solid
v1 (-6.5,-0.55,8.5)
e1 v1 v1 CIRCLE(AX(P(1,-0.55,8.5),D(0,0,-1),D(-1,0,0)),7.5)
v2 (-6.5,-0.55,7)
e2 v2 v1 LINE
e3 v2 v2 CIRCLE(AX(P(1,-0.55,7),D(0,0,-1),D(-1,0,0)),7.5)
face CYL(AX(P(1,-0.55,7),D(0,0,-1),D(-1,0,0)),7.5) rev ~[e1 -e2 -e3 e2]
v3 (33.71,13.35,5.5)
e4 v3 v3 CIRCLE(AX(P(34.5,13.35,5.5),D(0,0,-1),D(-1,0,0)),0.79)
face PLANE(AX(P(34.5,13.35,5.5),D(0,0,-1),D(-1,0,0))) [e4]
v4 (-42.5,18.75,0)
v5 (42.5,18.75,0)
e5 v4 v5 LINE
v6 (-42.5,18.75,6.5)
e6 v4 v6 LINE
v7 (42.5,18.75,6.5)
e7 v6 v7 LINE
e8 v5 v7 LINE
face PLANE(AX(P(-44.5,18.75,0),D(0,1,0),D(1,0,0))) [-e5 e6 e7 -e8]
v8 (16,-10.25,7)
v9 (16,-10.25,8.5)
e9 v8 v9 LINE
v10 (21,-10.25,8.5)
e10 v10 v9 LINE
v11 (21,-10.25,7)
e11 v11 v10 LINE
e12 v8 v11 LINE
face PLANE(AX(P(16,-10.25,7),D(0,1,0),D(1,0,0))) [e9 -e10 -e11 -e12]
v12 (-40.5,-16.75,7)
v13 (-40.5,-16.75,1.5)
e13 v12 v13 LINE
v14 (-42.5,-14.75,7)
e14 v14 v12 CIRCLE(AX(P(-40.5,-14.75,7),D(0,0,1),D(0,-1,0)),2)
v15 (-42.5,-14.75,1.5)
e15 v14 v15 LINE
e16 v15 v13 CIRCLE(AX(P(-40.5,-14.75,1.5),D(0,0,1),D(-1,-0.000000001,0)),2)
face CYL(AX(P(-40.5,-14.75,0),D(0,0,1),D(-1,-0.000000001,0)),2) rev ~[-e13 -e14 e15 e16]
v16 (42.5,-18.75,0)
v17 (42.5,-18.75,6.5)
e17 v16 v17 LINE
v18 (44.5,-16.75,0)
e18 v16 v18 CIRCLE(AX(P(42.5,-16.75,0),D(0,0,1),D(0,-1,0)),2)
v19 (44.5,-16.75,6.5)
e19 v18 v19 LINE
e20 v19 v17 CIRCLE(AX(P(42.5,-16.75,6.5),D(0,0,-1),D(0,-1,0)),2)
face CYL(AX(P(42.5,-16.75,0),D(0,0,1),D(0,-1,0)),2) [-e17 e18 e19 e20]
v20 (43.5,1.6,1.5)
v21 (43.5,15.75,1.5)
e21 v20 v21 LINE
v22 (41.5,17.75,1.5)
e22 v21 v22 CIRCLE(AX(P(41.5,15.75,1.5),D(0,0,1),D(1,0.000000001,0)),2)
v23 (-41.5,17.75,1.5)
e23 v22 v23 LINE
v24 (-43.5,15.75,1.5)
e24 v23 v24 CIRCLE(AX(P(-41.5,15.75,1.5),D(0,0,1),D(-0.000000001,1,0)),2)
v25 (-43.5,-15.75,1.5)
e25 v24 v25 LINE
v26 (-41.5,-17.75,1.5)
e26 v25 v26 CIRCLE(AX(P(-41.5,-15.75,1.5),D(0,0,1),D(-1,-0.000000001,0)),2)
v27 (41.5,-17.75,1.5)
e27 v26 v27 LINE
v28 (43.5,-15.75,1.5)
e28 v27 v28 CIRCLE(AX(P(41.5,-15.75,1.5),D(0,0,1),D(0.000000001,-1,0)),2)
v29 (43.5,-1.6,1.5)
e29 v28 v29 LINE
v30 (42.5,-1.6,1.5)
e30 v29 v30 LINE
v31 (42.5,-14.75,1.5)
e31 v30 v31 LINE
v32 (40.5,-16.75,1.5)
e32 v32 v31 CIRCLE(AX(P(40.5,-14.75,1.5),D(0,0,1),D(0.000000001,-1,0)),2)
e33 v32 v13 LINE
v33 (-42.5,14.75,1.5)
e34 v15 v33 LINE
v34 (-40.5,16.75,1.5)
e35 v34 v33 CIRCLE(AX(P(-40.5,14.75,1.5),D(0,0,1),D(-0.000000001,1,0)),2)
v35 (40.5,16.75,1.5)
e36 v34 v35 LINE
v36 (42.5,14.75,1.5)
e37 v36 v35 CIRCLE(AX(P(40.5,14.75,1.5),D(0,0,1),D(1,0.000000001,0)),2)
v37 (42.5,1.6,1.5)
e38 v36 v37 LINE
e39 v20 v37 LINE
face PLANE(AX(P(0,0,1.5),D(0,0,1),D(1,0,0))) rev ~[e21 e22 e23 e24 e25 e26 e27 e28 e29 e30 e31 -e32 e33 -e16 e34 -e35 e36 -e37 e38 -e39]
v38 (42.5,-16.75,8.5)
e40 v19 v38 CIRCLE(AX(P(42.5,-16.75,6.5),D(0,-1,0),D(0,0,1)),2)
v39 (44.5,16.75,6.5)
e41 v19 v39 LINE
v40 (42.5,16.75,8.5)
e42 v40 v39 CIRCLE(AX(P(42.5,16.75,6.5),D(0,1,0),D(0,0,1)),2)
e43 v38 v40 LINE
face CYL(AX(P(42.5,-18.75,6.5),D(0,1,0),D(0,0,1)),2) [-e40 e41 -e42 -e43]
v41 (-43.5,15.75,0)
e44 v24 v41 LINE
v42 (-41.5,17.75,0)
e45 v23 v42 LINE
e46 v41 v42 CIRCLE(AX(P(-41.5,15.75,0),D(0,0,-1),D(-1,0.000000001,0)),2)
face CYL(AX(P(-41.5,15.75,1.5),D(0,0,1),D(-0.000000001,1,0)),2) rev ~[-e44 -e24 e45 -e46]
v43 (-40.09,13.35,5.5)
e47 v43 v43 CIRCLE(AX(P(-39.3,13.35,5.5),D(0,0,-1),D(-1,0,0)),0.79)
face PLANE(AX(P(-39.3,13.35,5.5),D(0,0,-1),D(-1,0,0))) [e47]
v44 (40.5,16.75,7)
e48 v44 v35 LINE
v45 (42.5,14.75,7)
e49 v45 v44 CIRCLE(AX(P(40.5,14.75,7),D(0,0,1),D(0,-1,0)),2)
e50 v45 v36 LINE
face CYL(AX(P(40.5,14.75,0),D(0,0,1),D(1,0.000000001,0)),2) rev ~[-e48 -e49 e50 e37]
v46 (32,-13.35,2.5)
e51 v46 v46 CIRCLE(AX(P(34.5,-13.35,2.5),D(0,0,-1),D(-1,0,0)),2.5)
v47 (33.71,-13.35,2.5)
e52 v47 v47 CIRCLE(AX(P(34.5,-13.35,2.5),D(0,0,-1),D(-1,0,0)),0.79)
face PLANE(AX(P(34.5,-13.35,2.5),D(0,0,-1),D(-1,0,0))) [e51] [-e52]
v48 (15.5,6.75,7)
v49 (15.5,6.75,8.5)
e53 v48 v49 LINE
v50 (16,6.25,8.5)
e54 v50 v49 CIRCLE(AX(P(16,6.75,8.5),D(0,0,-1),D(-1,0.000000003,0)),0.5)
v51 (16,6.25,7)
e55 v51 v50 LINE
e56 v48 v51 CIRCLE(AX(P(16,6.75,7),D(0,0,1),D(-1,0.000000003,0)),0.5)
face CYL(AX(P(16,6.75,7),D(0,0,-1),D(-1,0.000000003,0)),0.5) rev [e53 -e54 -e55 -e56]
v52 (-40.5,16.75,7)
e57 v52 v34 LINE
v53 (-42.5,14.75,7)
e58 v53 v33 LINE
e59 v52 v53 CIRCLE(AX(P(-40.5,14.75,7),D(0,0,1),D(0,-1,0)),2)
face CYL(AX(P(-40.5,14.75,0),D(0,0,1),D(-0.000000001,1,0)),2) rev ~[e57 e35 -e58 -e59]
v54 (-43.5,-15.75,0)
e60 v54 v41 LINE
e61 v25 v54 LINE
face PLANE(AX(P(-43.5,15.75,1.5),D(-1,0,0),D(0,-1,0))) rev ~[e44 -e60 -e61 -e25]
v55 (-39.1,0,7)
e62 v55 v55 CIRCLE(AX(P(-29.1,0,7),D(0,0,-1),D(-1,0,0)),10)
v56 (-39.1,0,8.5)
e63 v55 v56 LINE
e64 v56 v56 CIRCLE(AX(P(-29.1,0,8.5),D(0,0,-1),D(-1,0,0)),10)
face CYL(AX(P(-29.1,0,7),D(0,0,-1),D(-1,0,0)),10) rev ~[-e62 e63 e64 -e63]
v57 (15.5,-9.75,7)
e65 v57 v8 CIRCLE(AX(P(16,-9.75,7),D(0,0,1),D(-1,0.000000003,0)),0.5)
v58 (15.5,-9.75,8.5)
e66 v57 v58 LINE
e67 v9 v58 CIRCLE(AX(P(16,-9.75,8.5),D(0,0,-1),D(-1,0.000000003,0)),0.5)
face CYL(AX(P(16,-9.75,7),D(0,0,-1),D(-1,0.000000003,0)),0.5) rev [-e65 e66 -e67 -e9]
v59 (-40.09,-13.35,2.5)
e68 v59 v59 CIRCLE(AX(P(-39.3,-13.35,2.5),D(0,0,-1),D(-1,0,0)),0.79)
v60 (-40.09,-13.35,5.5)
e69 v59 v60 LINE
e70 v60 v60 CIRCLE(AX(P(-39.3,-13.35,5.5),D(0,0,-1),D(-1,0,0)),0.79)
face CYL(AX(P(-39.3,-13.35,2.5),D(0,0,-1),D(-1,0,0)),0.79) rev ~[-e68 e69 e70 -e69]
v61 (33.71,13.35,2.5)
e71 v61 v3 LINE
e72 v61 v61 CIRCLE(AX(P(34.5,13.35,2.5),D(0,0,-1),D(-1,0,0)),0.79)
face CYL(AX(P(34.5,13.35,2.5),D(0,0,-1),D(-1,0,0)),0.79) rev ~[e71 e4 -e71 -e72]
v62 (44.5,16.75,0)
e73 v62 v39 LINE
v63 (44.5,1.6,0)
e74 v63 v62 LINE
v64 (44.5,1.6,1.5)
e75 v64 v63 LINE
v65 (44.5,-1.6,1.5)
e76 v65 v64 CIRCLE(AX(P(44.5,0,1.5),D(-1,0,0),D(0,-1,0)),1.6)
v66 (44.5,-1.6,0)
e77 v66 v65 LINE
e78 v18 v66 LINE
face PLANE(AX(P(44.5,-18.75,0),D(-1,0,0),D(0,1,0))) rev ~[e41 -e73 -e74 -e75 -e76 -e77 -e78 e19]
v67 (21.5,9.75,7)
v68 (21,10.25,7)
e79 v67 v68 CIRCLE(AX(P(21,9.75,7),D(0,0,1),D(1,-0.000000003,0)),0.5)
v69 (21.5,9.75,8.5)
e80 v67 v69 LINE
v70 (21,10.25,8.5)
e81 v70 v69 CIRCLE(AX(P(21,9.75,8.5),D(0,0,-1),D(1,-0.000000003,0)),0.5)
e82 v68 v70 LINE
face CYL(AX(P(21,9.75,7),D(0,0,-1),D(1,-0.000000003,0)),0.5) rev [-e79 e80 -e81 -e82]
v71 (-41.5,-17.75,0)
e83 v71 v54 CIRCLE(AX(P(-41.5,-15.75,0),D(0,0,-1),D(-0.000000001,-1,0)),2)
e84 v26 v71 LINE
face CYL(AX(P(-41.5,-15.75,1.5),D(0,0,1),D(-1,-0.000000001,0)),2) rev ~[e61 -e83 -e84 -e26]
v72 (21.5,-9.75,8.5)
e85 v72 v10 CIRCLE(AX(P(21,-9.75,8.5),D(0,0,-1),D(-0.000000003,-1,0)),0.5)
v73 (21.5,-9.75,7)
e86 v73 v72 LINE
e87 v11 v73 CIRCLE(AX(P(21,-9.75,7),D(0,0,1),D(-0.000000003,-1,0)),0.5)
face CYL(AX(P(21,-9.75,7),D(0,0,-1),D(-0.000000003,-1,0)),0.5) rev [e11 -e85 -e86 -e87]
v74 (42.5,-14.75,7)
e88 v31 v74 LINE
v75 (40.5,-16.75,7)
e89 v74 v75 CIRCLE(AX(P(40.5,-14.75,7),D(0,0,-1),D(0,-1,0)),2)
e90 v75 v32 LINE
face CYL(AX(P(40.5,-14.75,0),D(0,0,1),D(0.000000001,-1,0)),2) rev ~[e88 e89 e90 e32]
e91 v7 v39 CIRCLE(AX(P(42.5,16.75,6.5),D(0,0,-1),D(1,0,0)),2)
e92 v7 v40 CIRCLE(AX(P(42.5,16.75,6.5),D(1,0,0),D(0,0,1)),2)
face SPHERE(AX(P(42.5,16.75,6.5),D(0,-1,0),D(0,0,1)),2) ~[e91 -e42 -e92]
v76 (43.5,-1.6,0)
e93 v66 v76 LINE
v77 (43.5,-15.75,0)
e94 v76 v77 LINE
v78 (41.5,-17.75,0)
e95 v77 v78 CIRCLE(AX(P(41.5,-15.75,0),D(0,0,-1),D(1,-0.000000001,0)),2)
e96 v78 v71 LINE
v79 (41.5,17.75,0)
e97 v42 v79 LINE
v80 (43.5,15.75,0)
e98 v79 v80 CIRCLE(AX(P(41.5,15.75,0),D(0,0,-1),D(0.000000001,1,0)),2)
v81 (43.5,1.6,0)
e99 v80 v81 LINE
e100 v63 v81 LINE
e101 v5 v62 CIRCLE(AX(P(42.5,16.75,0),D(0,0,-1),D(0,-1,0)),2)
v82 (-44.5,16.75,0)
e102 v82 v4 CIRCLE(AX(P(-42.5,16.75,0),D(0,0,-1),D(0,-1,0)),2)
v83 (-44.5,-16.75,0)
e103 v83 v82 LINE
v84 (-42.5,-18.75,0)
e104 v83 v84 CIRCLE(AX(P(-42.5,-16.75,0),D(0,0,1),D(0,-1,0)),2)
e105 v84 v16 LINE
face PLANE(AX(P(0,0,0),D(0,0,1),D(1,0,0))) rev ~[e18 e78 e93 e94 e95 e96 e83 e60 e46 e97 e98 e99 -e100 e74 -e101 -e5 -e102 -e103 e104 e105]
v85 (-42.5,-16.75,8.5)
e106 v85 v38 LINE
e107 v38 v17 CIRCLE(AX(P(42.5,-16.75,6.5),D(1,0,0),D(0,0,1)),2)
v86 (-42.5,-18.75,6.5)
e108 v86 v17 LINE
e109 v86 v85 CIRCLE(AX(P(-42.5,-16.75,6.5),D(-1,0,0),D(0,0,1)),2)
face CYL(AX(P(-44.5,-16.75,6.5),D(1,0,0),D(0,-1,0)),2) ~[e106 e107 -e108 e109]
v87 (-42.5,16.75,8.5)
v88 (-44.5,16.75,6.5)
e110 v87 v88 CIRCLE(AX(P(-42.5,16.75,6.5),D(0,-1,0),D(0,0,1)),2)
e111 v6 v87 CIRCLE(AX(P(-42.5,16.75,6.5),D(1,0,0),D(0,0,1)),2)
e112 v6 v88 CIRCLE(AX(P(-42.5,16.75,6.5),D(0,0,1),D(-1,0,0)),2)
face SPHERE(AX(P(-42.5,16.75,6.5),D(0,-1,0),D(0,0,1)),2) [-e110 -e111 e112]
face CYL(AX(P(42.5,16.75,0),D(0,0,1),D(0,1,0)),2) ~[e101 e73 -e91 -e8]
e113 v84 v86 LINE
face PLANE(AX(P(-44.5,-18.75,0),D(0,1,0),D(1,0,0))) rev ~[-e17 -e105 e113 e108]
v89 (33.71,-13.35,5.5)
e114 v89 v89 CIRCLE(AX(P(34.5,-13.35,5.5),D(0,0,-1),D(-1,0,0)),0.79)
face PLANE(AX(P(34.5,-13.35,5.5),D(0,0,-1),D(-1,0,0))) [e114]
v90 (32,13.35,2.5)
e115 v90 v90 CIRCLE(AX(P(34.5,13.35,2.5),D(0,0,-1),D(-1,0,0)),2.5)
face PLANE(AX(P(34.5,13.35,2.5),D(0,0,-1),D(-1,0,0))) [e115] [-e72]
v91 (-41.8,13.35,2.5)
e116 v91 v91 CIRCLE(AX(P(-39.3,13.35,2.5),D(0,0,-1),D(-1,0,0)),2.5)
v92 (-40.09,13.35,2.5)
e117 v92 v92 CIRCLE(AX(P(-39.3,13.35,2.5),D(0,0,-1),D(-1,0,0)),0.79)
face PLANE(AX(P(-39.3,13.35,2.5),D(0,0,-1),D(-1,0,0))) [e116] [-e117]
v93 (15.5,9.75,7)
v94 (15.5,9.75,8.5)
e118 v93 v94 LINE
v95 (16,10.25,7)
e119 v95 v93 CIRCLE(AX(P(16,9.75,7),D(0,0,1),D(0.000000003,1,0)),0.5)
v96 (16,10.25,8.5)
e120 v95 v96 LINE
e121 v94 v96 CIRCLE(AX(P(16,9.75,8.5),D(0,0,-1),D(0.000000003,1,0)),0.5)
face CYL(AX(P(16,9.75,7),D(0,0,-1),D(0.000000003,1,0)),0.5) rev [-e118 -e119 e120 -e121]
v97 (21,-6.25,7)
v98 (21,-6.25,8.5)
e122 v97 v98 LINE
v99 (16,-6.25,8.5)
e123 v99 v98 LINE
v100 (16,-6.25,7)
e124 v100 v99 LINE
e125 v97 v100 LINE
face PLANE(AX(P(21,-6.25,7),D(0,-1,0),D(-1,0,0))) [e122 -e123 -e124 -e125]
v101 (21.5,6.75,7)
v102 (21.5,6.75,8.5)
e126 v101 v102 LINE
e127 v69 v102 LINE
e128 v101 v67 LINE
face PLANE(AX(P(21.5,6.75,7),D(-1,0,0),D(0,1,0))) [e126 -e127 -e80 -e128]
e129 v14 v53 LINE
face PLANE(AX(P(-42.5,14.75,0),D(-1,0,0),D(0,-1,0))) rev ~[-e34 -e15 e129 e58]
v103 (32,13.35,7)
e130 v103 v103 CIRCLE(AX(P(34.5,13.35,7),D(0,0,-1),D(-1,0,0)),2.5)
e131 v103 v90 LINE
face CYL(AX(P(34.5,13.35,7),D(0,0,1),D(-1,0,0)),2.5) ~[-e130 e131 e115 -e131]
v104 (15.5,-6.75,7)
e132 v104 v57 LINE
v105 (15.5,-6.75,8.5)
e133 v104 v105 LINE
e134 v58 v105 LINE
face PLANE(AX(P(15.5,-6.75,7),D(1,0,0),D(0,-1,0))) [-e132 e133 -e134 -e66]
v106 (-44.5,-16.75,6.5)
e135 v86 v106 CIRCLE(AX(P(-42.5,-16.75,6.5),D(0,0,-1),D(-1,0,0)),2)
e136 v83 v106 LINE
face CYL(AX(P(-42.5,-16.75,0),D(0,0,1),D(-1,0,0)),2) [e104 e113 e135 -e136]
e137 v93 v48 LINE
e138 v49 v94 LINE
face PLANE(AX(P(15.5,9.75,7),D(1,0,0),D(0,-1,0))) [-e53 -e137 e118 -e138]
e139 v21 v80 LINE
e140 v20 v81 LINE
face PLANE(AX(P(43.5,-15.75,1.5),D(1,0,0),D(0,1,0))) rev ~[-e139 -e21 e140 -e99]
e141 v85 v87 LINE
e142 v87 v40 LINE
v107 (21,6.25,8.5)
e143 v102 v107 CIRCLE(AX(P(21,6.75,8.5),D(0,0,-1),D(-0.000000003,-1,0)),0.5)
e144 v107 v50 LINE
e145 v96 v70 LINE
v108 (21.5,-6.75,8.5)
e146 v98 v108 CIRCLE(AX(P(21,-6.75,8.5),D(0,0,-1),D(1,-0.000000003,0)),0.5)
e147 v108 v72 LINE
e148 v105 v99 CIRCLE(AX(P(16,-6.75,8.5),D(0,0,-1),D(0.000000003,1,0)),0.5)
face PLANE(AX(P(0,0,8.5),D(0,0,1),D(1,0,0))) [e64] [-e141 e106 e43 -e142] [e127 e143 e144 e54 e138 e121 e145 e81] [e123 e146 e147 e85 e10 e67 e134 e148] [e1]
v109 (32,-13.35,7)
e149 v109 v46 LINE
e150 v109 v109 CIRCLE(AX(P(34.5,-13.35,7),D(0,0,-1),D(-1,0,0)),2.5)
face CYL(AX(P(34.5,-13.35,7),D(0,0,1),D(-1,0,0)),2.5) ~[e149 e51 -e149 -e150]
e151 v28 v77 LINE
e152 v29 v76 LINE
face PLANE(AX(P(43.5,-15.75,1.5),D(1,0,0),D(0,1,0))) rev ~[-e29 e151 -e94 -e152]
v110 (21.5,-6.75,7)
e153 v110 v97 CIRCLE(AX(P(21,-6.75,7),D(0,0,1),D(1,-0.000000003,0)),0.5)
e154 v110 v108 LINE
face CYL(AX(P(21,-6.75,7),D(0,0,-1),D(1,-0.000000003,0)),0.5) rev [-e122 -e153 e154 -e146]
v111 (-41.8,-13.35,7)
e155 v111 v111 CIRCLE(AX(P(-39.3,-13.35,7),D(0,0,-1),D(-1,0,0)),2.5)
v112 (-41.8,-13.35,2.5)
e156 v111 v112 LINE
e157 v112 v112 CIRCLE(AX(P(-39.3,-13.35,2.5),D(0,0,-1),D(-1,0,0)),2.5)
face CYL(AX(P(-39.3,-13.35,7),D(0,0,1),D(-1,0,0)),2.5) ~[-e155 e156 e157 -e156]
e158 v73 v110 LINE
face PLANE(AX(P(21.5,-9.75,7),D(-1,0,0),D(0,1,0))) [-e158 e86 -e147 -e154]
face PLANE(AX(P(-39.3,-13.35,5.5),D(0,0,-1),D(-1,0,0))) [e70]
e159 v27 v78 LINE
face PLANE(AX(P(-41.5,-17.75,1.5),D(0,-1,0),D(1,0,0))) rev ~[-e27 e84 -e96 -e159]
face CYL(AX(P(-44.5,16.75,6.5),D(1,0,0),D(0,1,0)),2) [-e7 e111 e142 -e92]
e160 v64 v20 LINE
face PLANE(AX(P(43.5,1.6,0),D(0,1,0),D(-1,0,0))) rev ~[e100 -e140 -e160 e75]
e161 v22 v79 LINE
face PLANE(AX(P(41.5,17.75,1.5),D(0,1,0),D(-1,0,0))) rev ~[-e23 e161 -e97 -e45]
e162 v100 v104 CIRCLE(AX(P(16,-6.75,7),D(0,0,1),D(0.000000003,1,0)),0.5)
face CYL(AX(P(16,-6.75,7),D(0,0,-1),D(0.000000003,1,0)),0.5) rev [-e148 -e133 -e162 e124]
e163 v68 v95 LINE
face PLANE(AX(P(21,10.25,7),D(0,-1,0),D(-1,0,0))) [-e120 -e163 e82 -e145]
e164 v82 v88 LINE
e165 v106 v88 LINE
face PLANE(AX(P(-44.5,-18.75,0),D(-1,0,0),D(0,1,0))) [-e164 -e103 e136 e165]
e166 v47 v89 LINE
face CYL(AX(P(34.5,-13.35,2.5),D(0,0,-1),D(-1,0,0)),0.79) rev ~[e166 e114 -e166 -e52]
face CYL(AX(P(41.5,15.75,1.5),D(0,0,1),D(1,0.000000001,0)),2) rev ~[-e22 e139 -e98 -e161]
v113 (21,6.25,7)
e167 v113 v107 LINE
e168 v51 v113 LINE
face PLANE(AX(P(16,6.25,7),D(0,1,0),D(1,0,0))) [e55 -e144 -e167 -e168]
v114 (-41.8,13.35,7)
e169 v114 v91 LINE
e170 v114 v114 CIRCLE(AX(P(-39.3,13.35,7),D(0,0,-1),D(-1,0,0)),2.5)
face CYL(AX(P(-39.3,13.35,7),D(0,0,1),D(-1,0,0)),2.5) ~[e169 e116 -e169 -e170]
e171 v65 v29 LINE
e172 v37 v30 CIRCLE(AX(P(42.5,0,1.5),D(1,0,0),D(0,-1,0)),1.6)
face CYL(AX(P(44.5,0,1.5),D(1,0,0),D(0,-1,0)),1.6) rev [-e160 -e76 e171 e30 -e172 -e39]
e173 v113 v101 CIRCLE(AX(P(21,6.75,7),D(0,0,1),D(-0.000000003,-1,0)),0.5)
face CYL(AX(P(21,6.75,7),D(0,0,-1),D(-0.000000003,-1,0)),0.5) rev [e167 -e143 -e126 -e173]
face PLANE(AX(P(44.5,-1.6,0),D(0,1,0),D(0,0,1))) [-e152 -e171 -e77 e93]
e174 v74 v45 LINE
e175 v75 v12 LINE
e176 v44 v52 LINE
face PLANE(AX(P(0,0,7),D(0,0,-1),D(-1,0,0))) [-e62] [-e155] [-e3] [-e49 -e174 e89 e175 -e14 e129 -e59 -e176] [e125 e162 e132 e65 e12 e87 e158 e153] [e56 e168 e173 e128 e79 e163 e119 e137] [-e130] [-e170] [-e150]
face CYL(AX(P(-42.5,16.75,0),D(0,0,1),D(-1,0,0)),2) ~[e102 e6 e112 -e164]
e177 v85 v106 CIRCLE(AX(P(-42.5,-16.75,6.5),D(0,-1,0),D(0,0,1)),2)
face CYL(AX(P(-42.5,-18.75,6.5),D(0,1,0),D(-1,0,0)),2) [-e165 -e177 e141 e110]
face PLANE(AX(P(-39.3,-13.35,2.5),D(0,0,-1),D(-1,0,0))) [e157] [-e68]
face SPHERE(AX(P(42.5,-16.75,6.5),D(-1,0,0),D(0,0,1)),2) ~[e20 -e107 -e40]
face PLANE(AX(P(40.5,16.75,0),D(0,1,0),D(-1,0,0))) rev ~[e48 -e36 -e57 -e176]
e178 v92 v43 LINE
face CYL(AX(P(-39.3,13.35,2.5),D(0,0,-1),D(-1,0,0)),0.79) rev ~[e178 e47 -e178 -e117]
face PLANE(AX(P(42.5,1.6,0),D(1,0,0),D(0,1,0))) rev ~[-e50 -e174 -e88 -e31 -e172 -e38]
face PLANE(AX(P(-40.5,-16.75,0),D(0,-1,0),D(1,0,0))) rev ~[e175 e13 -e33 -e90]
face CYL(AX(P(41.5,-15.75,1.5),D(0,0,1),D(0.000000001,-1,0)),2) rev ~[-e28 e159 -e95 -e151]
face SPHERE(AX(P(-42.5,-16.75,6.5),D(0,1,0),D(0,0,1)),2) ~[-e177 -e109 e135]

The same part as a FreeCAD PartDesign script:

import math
import FreeCAD as App
import Part
import Sketcher
from FreeCAD import Vector
Q = App.Units.Quantity


def edges_at(feature, points):
    """Names of the edges that pass closest to the given points."""
    edges = feature.Shape.Edges
    near = lambda p: min(range(len(edges)), key=lambda i: edges[i].distToShape(Part.Vertex(*p))[0])
    return sorted({f"Edge{near(p) + 1}" for p in points})


def add_polygon(sketch, points):
    """Adds a closed chain of lines whose ends are joined by coincident constraints."""
    first, n = sketch.GeometryCount, len(points)
    for a, b in zip(points, points[1:] + points[:1]):
        sketch.addGeometry(Part.LineSegment(App.Vector(*a, 0), App.Vector(*b, 0)), False)
    for i in range(n):
        sketch.addConstraint(Sketcher.Constraint("Coincident", first + i, 2, first + (i + 1) % n, 1))

doc = App.newDocument("Part")
body = doc.addObject("PartDesign::Body", "Body")

# Sketch on XY plane
sketch1 = body.newObject("Sketcher::SketchObject", "Sketch")
sketch1.AttachmentSupport = (doc.getObject("XY_Plane"), [""])
sketch1.MapMode = "FlatFace"
add_polygon(sketch1, [(-44, 19), (-44, -19), (44, -19), (44, 19)])  # lines 0-3
sketch1.addConstraint(Sketcher.Constraint("Vertical", 0))
sketch1.addConstraint(Sketcher.Constraint("Horizontal", 1))
sketch1.addConstraint(Sketcher.Constraint("Vertical", 2))
sketch1.addConstraint(Sketcher.Constraint("Horizontal", 3))
sketch1.addConstraint(Sketcher.Constraint("Symmetric", 0, 2, 2, 2, -1, 1))
sketch1.addConstraint(Sketcher.Constraint("DistanceX", 1, 1, 1, 2, Q("89 mm")))
sketch1.addConstraint(Sketcher.Constraint("DistanceY", 0, 2, 0, 1, Q("37.5 mm")))
pad1 = body.newObject("PartDesign::Pad", "Pad")
pad1.Profile = sketch1
pad1.Length = 8.5

# Sketch on XY plane
sketch2 = body.newObject("Sketcher::SketchObject", "Sketch001")
sketch2.AttachmentSupport = (doc.getObject("XY_Plane"), [""])
sketch2.MapMode = "FlatFace"
add_polygon(sketch2, [(42, 17), (42, -17), (-42, -17), (-42, 17)])  # lines 0-3
sketch2.addConstraint(Sketcher.Constraint("Vertical", 0))
sketch2.addConstraint(Sketcher.Constraint("Horizontal", 1))
sketch2.addConstraint(Sketcher.Constraint("Vertical", 2))
sketch2.addConstraint(Sketcher.Constraint("Horizontal", 3))
sketch2.addConstraint(Sketcher.Constraint("Symmetric", 0, 2, 2, 2, -1, 1))
sketch2.addConstraint(Sketcher.Constraint("DistanceX", 1, 2, 1, 1, Q("85 mm")))
sketch2.addConstraint(Sketcher.Constraint("DistanceY", 0, 2, 0, 1, Q("33.5 mm")))
pocket1 = body.newObject("PartDesign::Pocket", "Pocket")
pocket1.Profile = sketch2
pocket1.Length = 7
pocket1.Reversed = True

# Sketch on YZ plane
sketch3 = body.newObject("Sketcher::SketchObject", "Sketch002")
sketch3.AttachmentSupport = (doc.getObject("YZ_Plane"), [""])
sketch3.MapMode = "FlatFace"
sketch3.AttachmentOffset = App.Placement(Vector(0, 0, 44.5), App.Rotation())
sketch3.addGeometry(Part.LineSegment(Vector(-1.6, 0, 0), Vector(1.6, 0, 0)), False)
sketch3.addGeometry(Part.LineSegment(Vector(1.6, 0, 0), Vector(1.6, 1.5, 0)), False)
sketch3.addGeometry(Part.ArcOfCircle(Part.Circle(Vector(0, 1.5, 0), Vector(0, 0, 1), 1.6), math.radians(0), math.radians(180)), False)
sketch3.addGeometry(Part.LineSegment(Vector(-1.6, 1.5, 0), Vector(-1.6, 0, 0)), False)
sketch3.addConstraint(Sketcher.Constraint("Coincident", 0, 2, 1, 1))
sketch3.addConstraint(Sketcher.Constraint("Tangent", 1, 2, 2, 1))
sketch3.addConstraint(Sketcher.Constraint("Tangent", 2, 2, 3, 1))
sketch3.addConstraint(Sketcher.Constraint("Coincident", 3, 2, 0, 1))
sketch3.addConstraint(Sketcher.Constraint("Horizontal", 0))
sketch3.addConstraint(Sketcher.Constraint("Vertical", 1))
sketch3.addConstraint(Sketcher.Constraint("Vertical", 3))
sketch3.addConstraint(Sketcher.Constraint("Symmetric", 0, 2, 3, 2, -1, 1))
sketch3.addConstraint(Sketcher.Constraint("Radius", 2, Q("1.6 mm")))
sketch3.addConstraint(Sketcher.Constraint("DistanceY", 1, 1, 1, 2, Q("1.5 mm")))
pocket2 = body.newObject("PartDesign::Pocket", "Pocket001")
pocket2.Profile = sketch3
pocket2.Length = 4
doc.recompute()

fillet = body.newObject("PartDesign::Fillet", "Fillet")
fillet.Base = (pocket2, edges_at(pocket2, [
    (-44.5, 0, 8.5),
    (0, -18.75, 8.5),
    (42.5, -16.75, 3.5),
    (42.5, 16.75, 3.5),
    (-42.5, 16.75, 3.5),
    (-42.5, -16.75, 3.5),
    (44.5, 0, 8.5),
    (0, 18.75, 8.5),
    (44.5, -18.75, 4.25),
    (-44.5, -18.75, 4.25),
    (-44.5, 18.75, 4.25),
    (44.5, 18.75, 4.25),
]))
fillet.Radius = 2

# Sketch on XY plane
sketch4 = body.newObject("Sketcher::SketchObject", "Sketch003")
sketch4.AttachmentSupport = (doc.getObject("XY_Plane"), [""])
sketch4.MapMode = "FlatFace"
sketch4.addGeometry(Part.LineSegment(Vector(43.5, 15.8, 0), Vector(43.5, 1.6, 0)), False)
sketch4.addGeometry(Part.LineSegment(Vector(43.5, 1.6, 0), Vector(42.5, 1.6, 0)), False)
sketch4.addGeometry(Part.LineSegment(Vector(42.5, 1.6, 0), Vector(42.5, 14.8, 0)), False)
sketch4.addGeometry(Part.ArcOfCircle(Part.Circle(Vector(40.5, 14.7, 0), Vector(0, 0, 1), 2), math.radians(0), math.radians(90)), False)
sketch4.addGeometry(Part.LineSegment(Vector(40.5, 16.8, 0), Vector(-40.5, 16.8, 0)), False)
sketch4.addGeometry(Part.ArcOfCircle(Part.Circle(Vector(-40.5, 14.7, 0), Vector(0, 0, 1), 2), math.radians(90), math.radians(180)), False)
sketch4.addGeometry(Part.LineSegment(Vector(-42.5, 14.8, 0), Vector(-42.5, -14.8, 0)), False)
sketch4.addGeometry(Part.ArcOfCircle(Part.Circle(Vector(-40.5, -14.7, 0), Vector(0, 0, 1), 2), math.radians(-180), math.radians(-90)), False)
sketch4.addGeometry(Part.LineSegment(Vector(-40.5, -16.8, 0), Vector(40.5, -16.8, 0)), False)
sketch4.addGeometry(Part.ArcOfCircle(Part.Circle(Vector(40.5, -14.7, 0), Vector(0, 0, 1), 2), math.radians(-90), math.radians(0)), False)
sketch4.addGeometry(Part.LineSegment(Vector(42.5, -14.8, 0), Vector(42.5, -1.6, 0)), False)
sketch4.addGeometry(Part.LineSegment(Vector(42.5, -1.6, 0), Vector(43.5, -1.6, 0)), False)
sketch4.addGeometry(Part.LineSegment(Vector(43.5, -1.6, 0), Vector(43.5, -15.8, 0)), False)
sketch4.addGeometry(Part.ArcOfCircle(Part.Circle(Vector(41.5, -15.7, 0), Vector(0, 0, 1), 2), math.radians(-90), math.radians(0)), False)
sketch4.addGeometry(Part.LineSegment(Vector(41.5, -17.8, 0), Vector(-41.5, -17.8, 0)), False)
sketch4.addGeometry(Part.ArcOfCircle(Part.Circle(Vector(-41.5, -15.7, 0), Vector(0, 0, 1), 2), math.radians(-180), math.radians(-90)), False)
sketch4.addGeometry(Part.LineSegment(Vector(-43.5, -15.8, 0), Vector(-43.5, 15.8, 0)), False)
sketch4.addGeometry(Part.ArcOfCircle(Part.Circle(Vector(-41.5, 15.7, 0), Vector(0, 0, 1), 2), math.radians(90), math.radians(180)), False)
sketch4.addGeometry(Part.LineSegment(Vector(-41.5, 17.8, 0), Vector(41.5, 17.8, 0)), False)
sketch4.addGeometry(Part.ArcOfCircle(Part.Circle(Vector(41.5, 15.7, 0), Vector(0, 0, 1), 2), math.radians(0), math.radians(90)), False)
sketch4.addConstraint(Sketcher.Constraint("Coincident", 0, 2, 1, 1))
sketch4.addConstraint(Sketcher.Constraint("Coincident", 1, 2, 2, 1))
sketch4.addConstraint(Sketcher.Constraint("Tangent", 2, 2, 3, 1))
sketch4.addConstraint(Sketcher.Constraint("Tangent", 3, 2, 4, 1))
sketch4.addConstraint(Sketcher.Constraint("Tangent", 4, 2, 5, 1))
sketch4.addConstraint(Sketcher.Constraint("Tangent", 5, 2, 6, 1))
sketch4.addConstraint(Sketcher.Constraint("Tangent", 6, 2, 7, 1))
sketch4.addConstraint(Sketcher.Constraint("Tangent", 7, 2, 8, 1))
sketch4.addConstraint(Sketcher.Constraint("Tangent", 8, 2, 9, 1))
sketch4.addConstraint(Sketcher.Constraint("Tangent", 9, 2, 10, 1))
sketch4.addConstraint(Sketcher.Constraint("Coincident", 10, 2, 11, 1))
sketch4.addConstraint(Sketcher.Constraint("Coincident", 11, 2, 12, 1))
sketch4.addConstraint(Sketcher.Constraint("Tangent", 12, 2, 13, 2))
sketch4.addConstraint(Sketcher.Constraint("Tangent", 13, 1, 14, 1))
sketch4.addConstraint(Sketcher.Constraint("Tangent", 14, 2, 15, 2))
sketch4.addConstraint(Sketcher.Constraint("Tangent", 15, 1, 16, 1))
sketch4.addConstraint(Sketcher.Constraint("Tangent", 16, 2, 17, 2))
sketch4.addConstraint(Sketcher.Constraint("Tangent", 17, 1, 18, 1))
sketch4.addConstraint(Sketcher.Constraint("Tangent", 18, 2, 19, 2))
sketch4.addConstraint(Sketcher.Constraint("Tangent", 19, 1, 0, 1))
sketch4.addConstraint(Sketcher.Constraint("Vertical", 0))
sketch4.addConstraint(Sketcher.Constraint("Horizontal", 1))
sketch4.addConstraint(Sketcher.Constraint("Vertical", 2))
sketch4.addConstraint(Sketcher.Constraint("Horizontal", 4))
sketch4.addConstraint(Sketcher.Constraint("Vertical", 6))
sketch4.addConstraint(Sketcher.Constraint("Horizontal", 8))
sketch4.addConstraint(Sketcher.Constraint("Vertical", 10))
sketch4.addConstraint(Sketcher.Constraint("Horizontal", 11))
sketch4.addConstraint(Sketcher.Constraint("Vertical", 12))
sketch4.addConstraint(Sketcher.Constraint("Horizontal", 14))
sketch4.addConstraint(Sketcher.Constraint("Vertical", 16))
sketch4.addConstraint(Sketcher.Constraint("Horizontal", 18))
sketch4.addConstraint(Sketcher.Constraint("Equal", 3, 5))
sketch4.addConstraint(Sketcher.Constraint("Equal", 5, 7))
sketch4.addConstraint(Sketcher.Constraint("Equal", 7, 9))
sketch4.addConstraint(Sketcher.Constraint("Equal", 9, 13))
sketch4.addConstraint(Sketcher.Constraint("Equal", 13, 15))
sketch4.addConstraint(Sketcher.Constraint("Equal", 15, 17))
sketch4.addConstraint(Sketcher.Constraint("Equal", 17, 19))
sketch4.addConstraint(Sketcher.Constraint("Symmetric", 3, 3, 7, 3, -1, 1))
sketch4.addConstraint(Sketcher.Constraint("Symmetric", 13, 3, 17, 3, -1, 1))
sketch4.addConstraint(Sketcher.Constraint("Symmetric", 1, 2, 10, 2, -1))
sketch4.addConstraint(Sketcher.Constraint("Vertical", 13, 3, 19, 3))
sketch4.addConstraint(Sketcher.Constraint("Radius", 3, Q("2 mm")))
sketch4.addConstraint(Sketcher.Constraint("DistanceX", 1, 2, 1, 1, Q("1 mm")))
sketch4.addConstraint(Sketcher.Constraint("DistanceX", 4, 2, 4, 1, Q("81 mm")))
sketch4.addConstraint(Sketcher.Constraint("DistanceY", 6, 2, 6, 1, Q("29.5 mm")))
sketch4.addConstraint(Sketcher.Constraint("DistanceY", 16, 1, 16, 2, Q("31.5 mm")))
sketch4.addConstraint(Sketcher.Constraint("DistanceY", 0, 2, 0, 1, Q("14.15 mm")))
pad2 = body.newObject("PartDesign::Pad", "Pad001")
pad2.Profile = sketch4
pad2.Length = 1
pad2.Reversed = True

# Sketch on XY plane
sketch5 = body.newObject("Sketcher::SketchObject", "Sketch004")
sketch5.AttachmentSupport = (doc.getObject("XY_Plane"), [""])
sketch5.MapMode = "FlatFace"
sketch5.AttachmentOffset = App.Placement(Vector(0, 0, 7), App.Rotation())
sketch5.addGeometry(Part.Circle(Vector(-39.3, -13.3, 0), Vector(0, 0, 1), 2.5), False)
sketch5.addGeometry(Part.Circle(Vector(-39.3, 13.3, 0), Vector(0, 0, 1), 2.5), False)
sketch5.addGeometry(Part.Circle(Vector(34.5, 13.3, 0), Vector(0, 0, 1), 2.5), False)
sketch5.addGeometry(Part.Circle(Vector(34.5, -13.3, 0), Vector(0, 0, 1), 2.5), False)
sketch5.addConstraint(Sketcher.Constraint("Equal", 0, 1))
sketch5.addConstraint(Sketcher.Constraint("Equal", 1, 2))
sketch5.addConstraint(Sketcher.Constraint("Equal", 2, 3))
sketch5.addConstraint(Sketcher.Constraint("Symmetric", 0, 3, 1, 3, -1))
sketch5.addConstraint(Sketcher.Constraint("Symmetric", 2, 3, 3, 3, -1))
sketch5.addConstraint(Sketcher.Constraint("Horizontal", 1, 3, 2, 3))
sketch5.addConstraint(Sketcher.Constraint("Diameter", 0, Q("5 mm")))
sketch5.addConstraint(Sketcher.Constraint("DistanceX", 0, 3, -1, 1, Q("39.3 mm")))
sketch5.addConstraint(Sketcher.Constraint("DistanceX", -1, 1, 2, 3, Q("34.5 mm")))
sketch5.addConstraint(Sketcher.Constraint("DistanceY", 0, 3, 1, 3, Q("26.7 mm")))
pad3 = body.newObject("PartDesign::Pad", "Pad002")
pad3.Profile = sketch5
pad3.Length = 4.5
pad3.Reversed = True

# Sketch on XY plane
sketch6 = body.newObject("Sketcher::SketchObject", "Sketch005")
sketch6.AttachmentSupport = (doc.getObject("XY_Plane"), [""])
sketch6.MapMode = "FlatFace"
sketch6.AttachmentOffset = App.Placement(Vector(0, 0, 2.5), App.Rotation())
sketch6.addGeometry(Part.Circle(Vector(34.5, 13.3, 0), Vector(0, 0, 1), 0.8), False)
sketch6.addGeometry(Part.Circle(Vector(34.5, -13.3, 0), Vector(0, 0, 1), 0.8), False)
sketch6.addGeometry(Part.Circle(Vector(-39.3, 13.3, 0), Vector(0, 0, 1), 0.8), False)
sketch6.addGeometry(Part.Circle(Vector(-39.3, -13.3, 0), Vector(0, 0, 1), 0.8), False)
sketch6.addConstraint(Sketcher.Constraint("Equal", 0, 1))
sketch6.addConstraint(Sketcher.Constraint("Equal", 1, 2))
sketch6.addConstraint(Sketcher.Constraint("Equal", 2, 3))
sketch6.addConstraint(Sketcher.Constraint("Symmetric", 0, 3, 1, 3, -1))
sketch6.addConstraint(Sketcher.Constraint("Symmetric", 2, 3, 3, 3, -1))
sketch6.addConstraint(Sketcher.Constraint("Horizontal", 0, 3, 2, 3))
sketch6.addConstraint(Sketcher.Constraint("Diameter", 0, Q("1.58 mm")))
sketch6.addConstraint(Sketcher.Constraint("DistanceX", -1, 1, 0, 3, Q("34.5 mm")))
sketch6.addConstraint(Sketcher.Constraint("DistanceX", 2, 3, -1, 1, Q("39.3 mm")))
sketch6.addConstraint(Sketcher.Constraint("DistanceY", 1, 3, 0, 3, Q("26.7 mm")))
pocket3 = body.newObject("PartDesign::Pocket", "Pocket002")
pocket3.Profile = sketch6
pocket3.Length = 3
pocket3.Reversed = True

# Sketch on XY plane
sketch7 = body.newObject("Sketcher::SketchObject", "Sketch006")
sketch7.AttachmentSupport = (doc.getObject("XY_Plane"), [""])
sketch7.MapMode = "FlatFace"
sketch7.AttachmentOffset = App.Placement(Vector(0, 0, 7), App.Rotation())
sketch7.addGeometry(Part.Circle(Vector(1, -1, 0), Vector(0, 0, 1), 8), False)
sketch7.addConstraint(Sketcher.Constraint("Diameter", 0, Q("15 mm")))
sketch7.addConstraint(Sketcher.Constraint("DistanceX", -1, 1, 0, 3, Q("1 mm")))
sketch7.addConstraint(Sketcher.Constraint("DistanceY", 0, 3, -1, 1, Q("0.55 mm")))
pocket4 = body.newObject("PartDesign::Pocket", "Pocket003")
pocket4.Profile = sketch7
pocket4.Length = 3
pocket4.Reversed = True

# Sketch on XY plane
sketch8 = body.newObject("Sketcher::SketchObject", "Sketch007")
sketch8.AttachmentSupport = (doc.getObject("XY_Plane"), [""])
sketch8.MapMode = "FlatFace"
sketch8.AttachmentOffset = App.Placement(Vector(0, 0, 7), App.Rotation())
sketch8.addGeometry(Part.Circle(Vector(-29, 0, 0), Vector(0, 0, 1), 10), False)
sketch8.addConstraint(Sketcher.Constraint("PointOnObject", 0, 3, -1))
sketch8.addConstraint(Sketcher.Constraint("Diameter", 0, Q("20 mm")))
sketch8.addConstraint(Sketcher.Constraint("DistanceX", 0, 3, -1, 1, Q("29.1 mm")))
pocket5 = body.newObject("PartDesign::Pocket", "Pocket004")
pocket5.Profile = sketch8
pocket5.Length = 3
pocket5.Reversed = True

# Sketch on XY plane
sketch9 = body.newObject("Sketcher::SketchObject", "Sketch008")
sketch9.AttachmentSupport = (doc.getObject("XY_Plane"), [""])
sketch9.MapMode = "FlatFace"
sketch9.AttachmentOffset = App.Placement(Vector(0, 0, 1.5), App.Rotation())
sketch9.addGeometry(Part.LineSegment(Vector(-41.5, 17.8, 0), Vector(41.5, 17.8, 0)), False)
sketch9.addGeometry(Part.ArcOfCircle(Part.Circle(Vector(41.5, 15.7, 0), Vector(0, 0, 1), 2), math.radians(0), math.radians(90)), False)
sketch9.addGeometry(Part.LineSegment(Vector(43.5, 15.8, 0), Vector(43.5, -15.8, 0)), False)
sketch9.addGeometry(Part.ArcOfCircle(Part.Circle(Vector(41.5, -15.7, 0), Vector(0, 0, 1), 2), math.radians(-90), math.radians(0)), False)
sketch9.addGeometry(Part.LineSegment(Vector(41.5, -17.8, 0), Vector(-41.5, -17.8, 0)), False)
sketch9.addGeometry(Part.ArcOfCircle(Part.Circle(Vector(-41.5, -15.7, 0), Vector(0, 0, 1), 2), math.radians(-180), math.radians(-90)), False)
sketch9.addGeometry(Part.LineSegment(Vector(-43.5, -15.8, 0), Vector(-43.5, 15.8, 0)), False)
sketch9.addGeometry(Part.ArcOfCircle(Part.Circle(Vector(-41.5, 15.7, 0), Vector(0, 0, 1), 2), math.radians(90), math.radians(180)), False)
sketch9.addConstraint(Sketcher.Constraint("Tangent", 0, 2, 1, 2))
sketch9.addConstraint(Sketcher.Constraint("Tangent", 1, 1, 2, 1))
sketch9.addConstraint(Sketcher.Constraint("Tangent", 2, 2, 3, 2))
sketch9.addConstraint(Sketcher.Constraint("Tangent", 3, 1, 4, 1))
sketch9.addConstraint(Sketcher.Constraint("Tangent", 4, 2, 5, 2))
sketch9.addConstraint(Sketcher.Constraint("Tangent", 5, 1, 6, 1))
sketch9.addConstraint(Sketcher.Constraint("Tangent", 6, 2, 7, 2))
sketch9.addConstraint(Sketcher.Constraint("Tangent", 7, 1, 0, 1))
sketch9.addConstraint(Sketcher.Constraint("Horizontal", 0))
sketch9.addConstraint(Sketcher.Constraint("Vertical", 2))
sketch9.addConstraint(Sketcher.Constraint("Horizontal", 4))
sketch9.addConstraint(Sketcher.Constraint("Vertical", 6))
sketch9.addConstraint(Sketcher.Constraint("Equal", 1, 3))
sketch9.addConstraint(Sketcher.Constraint("Equal", 3, 5))
sketch9.addConstraint(Sketcher.Constraint("Equal", 5, 7))
sketch9.addConstraint(Sketcher.Constraint("Symmetric", 1, 3, 5, 3, -1, 1))
sketch9.addConstraint(Sketcher.Constraint("Radius", 1, Q("2 mm")))
sketch9.addConstraint(Sketcher.Constraint("DistanceX", 0, 1, 0, 2, Q("83 mm")))
sketch9.addConstraint(Sketcher.Constraint("DistanceY", 2, 2, 2, 1, Q("31.5 mm")))
pocket6 = body.newObject("PartDesign::Pocket", "Pocket005")
pocket6.Profile = sketch9
pocket6.Length = 2.5

# Sketch on XY plane
sketch10 = body.newObject("Sketcher::SketchObject", "Sketch009")
sketch10.AttachmentSupport = (doc.getObject("XY_Plane"), [""])
sketch10.MapMode = "FlatFace"
sketch10.AttachmentOffset = App.Placement(Vector(0, 0, 7), App.Rotation())
sketch10.addGeometry(Part.LineSegment(Vector(16, -6.25, 0), Vector(21, -6.25, 0)), False)
sketch10.addGeometry(Part.ArcOfCircle(Part.Circle(Vector(21, -6.75, 0), Vector(0, 0, 1), 0.5), math.radians(0), math.radians(90)), False)
sketch10.addGeometry(Part.LineSegment(Vector(21.5, -6.75, 0), Vector(21.5, -9.75, 0)), False)
sketch10.addGeometry(Part.ArcOfCircle(Part.Circle(Vector(21, -9.75, 0), Vector(0, 0, 1), 0.5), math.radians(-90), math.radians(0)), False)
sketch10.addGeometry(Part.LineSegment(Vector(21, -10.25, 0), Vector(16, -10.25, 0)), False)
sketch10.addGeometry(Part.ArcOfCircle(Part.Circle(Vector(16, -9.75, 0), Vector(0, 0, 1), 0.5), math.radians(180), math.radians(270)), False)
sketch10.addGeometry(Part.LineSegment(Vector(15.5, -9.75, 0), Vector(15.5, -6.75, 0)), False)
sketch10.addGeometry(Part.ArcOfCircle(Part.Circle(Vector(16, -6.75, 0), Vector(0, 0, 1), 0.5), math.radians(90), math.radians(180)), False)
sketch10.addGeometry(Part.LineSegment(Vector(16, 10.25, 0), Vector(21, 10.25, 0)), False)
sketch10.addGeometry(Part.ArcOfCircle(Part.Circle(Vector(21, 9.75, 0), Vector(0, 0, 1), 0.5), math.radians(0), math.radians(90)), False)
sketch10.addGeometry(Part.LineSegment(Vector(21.5, 9.75, 0), Vector(21.5, 6.75, 0)), False)
sketch10.addGeometry(Part.ArcOfCircle(Part.Circle(Vector(21, 6.75, 0), Vector(0, 0, 1), 0.5), math.radians(-90), math.radians(0)), False)
sketch10.addGeometry(Part.LineSegment(Vector(21, 6.25, 0), Vector(16, 6.25, 0)), False)
sketch10.addGeometry(Part.ArcOfCircle(Part.Circle(Vector(16, 6.75, 0), Vector(0, 0, 1), 0.5), math.radians(180), math.radians(270)), False)
sketch10.addGeometry(Part.LineSegment(Vector(15.5, 6.75, 0), Vector(15.5, 9.75, 0)), False)
sketch10.addGeometry(Part.ArcOfCircle(Part.Circle(Vector(16, 9.75, 0), Vector(0, 0, 1), 0.5), math.radians(90), math.radians(180)), False)
sketch10.addConstraint(Sketcher.Constraint("Tangent", 0, 2, 1, 2))
sketch10.addConstraint(Sketcher.Constraint("Tangent", 1, 1, 2, 1))
sketch10.addConstraint(Sketcher.Constraint("Tangent", 2, 2, 3, 2))
sketch10.addConstraint(Sketcher.Constraint("Tangent", 3, 1, 4, 1))
sketch10.addConstraint(Sketcher.Constraint("Tangent", 4, 2, 5, 2))
sketch10.addConstraint(Sketcher.Constraint("Tangent", 5, 1, 6, 1))
sketch10.addConstraint(Sketcher.Constraint("Tangent", 6, 2, 7, 2))
sketch10.addConstraint(Sketcher.Constraint("Tangent", 7, 1, 0, 1))
sketch10.addConstraint(Sketcher.Constraint("Tangent", 8, 2, 9, 2))
sketch10.addConstraint(Sketcher.Constraint("Tangent", 9, 1, 10, 1))
sketch10.addConstraint(Sketcher.Constraint("Tangent", 10, 2, 11, 2))
sketch10.addConstraint(Sketcher.Constraint("Tangent", 11, 1, 12, 1))
sketch10.addConstraint(Sketcher.Constraint("Tangent", 12, 2, 13, 2))
sketch10.addConstraint(Sketcher.Constraint("Tangent", 13, 1, 14, 1))
sketch10.addConstraint(Sketcher.Constraint("Tangent", 14, 2, 15, 2))
sketch10.addConstraint(Sketcher.Constraint("Tangent", 15, 1, 8, 1))
sketch10.addConstraint(Sketcher.Constraint("Horizontal", 0))
sketch10.addConstraint(Sketcher.Constraint("Vertical", 2))
sketch10.addConstraint(Sketcher.Constraint("Horizontal", 4))
sketch10.addConstraint(Sketcher.Constraint("Vertical", 6))
sketch10.addConstraint(Sketcher.Constraint("Horizontal", 8))
sketch10.addConstraint(Sketcher.Constraint("Vertical", 10))
sketch10.addConstraint(Sketcher.Constraint("Horizontal", 12))
sketch10.addConstraint(Sketcher.Constraint("Vertical", 14))
sketch10.addConstraint(Sketcher.Constraint("Equal", 1, 3))
sketch10.addConstraint(Sketcher.Constraint("Equal", 3, 5))
sketch10.addConstraint(Sketcher.Constraint("Equal", 5, 7))
sketch10.addConstraint(Sketcher.Constraint("Equal", 7, 9))
sketch10.addConstraint(Sketcher.Constraint("Equal", 9, 11))
sketch10.addConstraint(Sketcher.Constraint("Equal", 11, 13))
sketch10.addConstraint(Sketcher.Constraint("Equal", 13, 15))
sketch10.addConstraint(Sketcher.Constraint("Symmetric", 3, 3, 9, 3, -1))
sketch10.addConstraint(Sketcher.Constraint("Symmetric", 7, 3, 13, 3, -1))
sketch10.addConstraint(Sketcher.Constraint("Radius", 1, Q("0.5 mm")))
sketch10.addConstraint(Sketcher.Constraint("DistanceX", 0, 1, 0, 2, Q("5 mm")))
sketch10.addConstraint(Sketcher.Constraint("DistanceY", 2, 2, 2, 1, Q("3 mm")))
sketch10.addConstraint(Sketcher.Constraint("DistanceX", -1, 1, 1, 3, Q("21 mm")))
sketch10.addConstraint(Sketcher.Constraint("DistanceY", 0, 2, 11, 3, Q("13 mm")))
pocket7 = body.newObject("PartDesign::Pocket", "Pocket006")
pocket7.Profile = sketch10
pocket7.Length = 10
pocket7.Reversed = True

doc.recompute()
